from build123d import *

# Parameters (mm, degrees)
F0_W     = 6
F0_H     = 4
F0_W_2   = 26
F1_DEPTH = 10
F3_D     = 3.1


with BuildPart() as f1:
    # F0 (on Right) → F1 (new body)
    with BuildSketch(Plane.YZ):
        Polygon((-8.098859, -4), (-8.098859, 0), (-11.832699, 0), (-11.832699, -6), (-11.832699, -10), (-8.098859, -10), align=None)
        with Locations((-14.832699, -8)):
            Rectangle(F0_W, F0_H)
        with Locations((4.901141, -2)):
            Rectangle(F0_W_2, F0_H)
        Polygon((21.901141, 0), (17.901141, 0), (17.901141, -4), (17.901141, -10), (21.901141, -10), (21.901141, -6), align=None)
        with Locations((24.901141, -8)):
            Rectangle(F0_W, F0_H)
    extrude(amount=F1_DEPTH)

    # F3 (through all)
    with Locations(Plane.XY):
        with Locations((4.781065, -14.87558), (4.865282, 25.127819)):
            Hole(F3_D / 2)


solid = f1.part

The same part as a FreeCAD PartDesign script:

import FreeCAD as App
import Part
import Sketcher
from FreeCAD import Vector


def add_polygon(sketch, points):
    """Adds a closed chain of lines whose ends are joined by coincident constraints."""
    first, n = sketch.GeometryCount, len(points)
    for a, b in zip(points, points[1:] + points[:1]):
        sketch.addGeometry(Part.LineSegment(App.Vector(*a, 0), App.Vector(*b, 0)), False)
    for i in range(n):
        sketch.addConstraint(Sketcher.Constraint("Coincident", first + i, 2, first + (i + 1) % n, 1))

doc = App.newDocument("Part")
body = doc.addObject("PartDesign::Body", "Body")

# Sketch on YZ plane
sketch1 = body.newObject("Sketcher::SketchObject", "Sketch")
sketch1.AttachmentSupport = (doc.getObject("YZ_Plane"), [""])
sketch1.MapMode = "FlatFace"
add_polygon(sketch1, [(-11.8, 0), (-11.8, -6), (-17.8, -6), (-17.8, -10), (-8.1, -10), (-8.1, -4), (17.9, -4), (17.9, -10), (27.9, -10), (27.9, -6), (21.9, -6), (21.9, 0)])  # lines 0-11
sketch1.addConstraint(Sketcher.Constraint("Vertical", 0))
sketch1.addConstraint(Sketcher.Constraint("Horizontal", 1))
sketch1.addConstraint(Sketcher.Constraint("Vertical", 2))
sketch1.addConstraint(Sketcher.Constraint("Horizontal", 3))
sketch1.addConstraint(Sketcher.Constraint("Vertical", 4))
sketch1.addConstraint(Sketcher.Constraint("Horizontal", 5))
sketch1.addConstraint(Sketcher.Constraint("Vertical", 6))
sketch1.addConstraint(Sketcher.Constraint("Horizontal", 7))
sketch1.addConstraint(Sketcher.Constraint("Vertical", 8))
sketch1.addConstraint(Sketcher.Constraint("Horizontal", 9))
sketch1.addConstraint(Sketcher.Constraint("Vertical", 10))
sketch1.addConstraint(Sketcher.Constraint("Horizontal", 11))
sketch1.addConstraint(Sketcher.Constraint("PointOnObject", 10, 2, -1))
sketch1.addConstraint(Sketcher.Constraint("Horizontal", 3, 2, 6, 2))
sketch1.addConstraint(Sketcher.Constraint("Horizontal", 1, 2, 8, 2))
sketch1.addConstraint(Sketcher.Constraint("Equal", 1, 9))
sketch1.addConstraint(Sketcher.Constraint("Equal", 9, 0))
sketch1.addConstraint(Sketcher.Constraint("Equal", 0, 4))
sketch1.addConstraint(Sketcher.Constraint("DistanceX", 1, 2, 1, 1, 6.0))
sketch1.addConstraint(Sketcher.Constraint("DistanceX", 5, 1, 5, 2, 26.0))
sketch1.addConstraint(Sketcher.Constraint("DistanceX", 7, 1, 7, 2, 10.0))
sketch1.addConstraint(Sketcher.Constraint("DistanceY", 2, 2, 2, 1, 4.0))
sketch1.addConstraint(Sketcher.Constraint("DistanceX", 3, 1, 3, 2, 9.73384))
sketch1.addConstraint(Sketcher.Constraint("DistanceX", 0, 2, -1, 1, 11.832699))
pad1 = body.newObject("PartDesign::Pad", "Pad")
pad1.Profile = sketch1
pad1.Length = 10

# Sketch on XY plane
sketch2 = body.newObject("Sketcher::SketchObject", "Sketch001")
sketch2.AttachmentSupport = (doc.getObject("XY_Plane"), [""])
sketch2.MapMode = "FlatFace"
sketch2.addGeometry(Part.Circle(Vector(4.8, -14.9, 0), Vector(0, 0, 1), 1.6), False)
sketch2.addGeometry(Part.Circle(Vector(4.9, 25.1, 0), Vector(0, 0, 1), 1.6), False)
sketch2.addConstraint(Sketcher.Constraint("Equal", 0, 1))
sketch2.addConstraint(Sketcher.Constraint("Diameter", 0, 3.1))
sketch2.addConstraint(Sketcher.Constraint("DistanceY", 0, 3, 1, 3, 40.003399))
sketch2.addConstraint(Sketcher.Constraint("DistanceY", 0, 3, -1, 1, 14.87558))
sketch2.addConstraint(Sketcher.Constraint("DistanceX", -1, 1, 1, 3, 4.865282))
sketch2.addConstraint(Sketcher.Constraint("DistanceX", -1, 1, 0, 3, 4.781065))
doc.recompute()
hole = body.newObject("PartDesign::Hole", "Hole")
hole.Profile = sketch2
hole.ThreadType = "None"
hole.Diameter = 3.1
hole.DepthType = "ThroughAll"

doc.recompute()
